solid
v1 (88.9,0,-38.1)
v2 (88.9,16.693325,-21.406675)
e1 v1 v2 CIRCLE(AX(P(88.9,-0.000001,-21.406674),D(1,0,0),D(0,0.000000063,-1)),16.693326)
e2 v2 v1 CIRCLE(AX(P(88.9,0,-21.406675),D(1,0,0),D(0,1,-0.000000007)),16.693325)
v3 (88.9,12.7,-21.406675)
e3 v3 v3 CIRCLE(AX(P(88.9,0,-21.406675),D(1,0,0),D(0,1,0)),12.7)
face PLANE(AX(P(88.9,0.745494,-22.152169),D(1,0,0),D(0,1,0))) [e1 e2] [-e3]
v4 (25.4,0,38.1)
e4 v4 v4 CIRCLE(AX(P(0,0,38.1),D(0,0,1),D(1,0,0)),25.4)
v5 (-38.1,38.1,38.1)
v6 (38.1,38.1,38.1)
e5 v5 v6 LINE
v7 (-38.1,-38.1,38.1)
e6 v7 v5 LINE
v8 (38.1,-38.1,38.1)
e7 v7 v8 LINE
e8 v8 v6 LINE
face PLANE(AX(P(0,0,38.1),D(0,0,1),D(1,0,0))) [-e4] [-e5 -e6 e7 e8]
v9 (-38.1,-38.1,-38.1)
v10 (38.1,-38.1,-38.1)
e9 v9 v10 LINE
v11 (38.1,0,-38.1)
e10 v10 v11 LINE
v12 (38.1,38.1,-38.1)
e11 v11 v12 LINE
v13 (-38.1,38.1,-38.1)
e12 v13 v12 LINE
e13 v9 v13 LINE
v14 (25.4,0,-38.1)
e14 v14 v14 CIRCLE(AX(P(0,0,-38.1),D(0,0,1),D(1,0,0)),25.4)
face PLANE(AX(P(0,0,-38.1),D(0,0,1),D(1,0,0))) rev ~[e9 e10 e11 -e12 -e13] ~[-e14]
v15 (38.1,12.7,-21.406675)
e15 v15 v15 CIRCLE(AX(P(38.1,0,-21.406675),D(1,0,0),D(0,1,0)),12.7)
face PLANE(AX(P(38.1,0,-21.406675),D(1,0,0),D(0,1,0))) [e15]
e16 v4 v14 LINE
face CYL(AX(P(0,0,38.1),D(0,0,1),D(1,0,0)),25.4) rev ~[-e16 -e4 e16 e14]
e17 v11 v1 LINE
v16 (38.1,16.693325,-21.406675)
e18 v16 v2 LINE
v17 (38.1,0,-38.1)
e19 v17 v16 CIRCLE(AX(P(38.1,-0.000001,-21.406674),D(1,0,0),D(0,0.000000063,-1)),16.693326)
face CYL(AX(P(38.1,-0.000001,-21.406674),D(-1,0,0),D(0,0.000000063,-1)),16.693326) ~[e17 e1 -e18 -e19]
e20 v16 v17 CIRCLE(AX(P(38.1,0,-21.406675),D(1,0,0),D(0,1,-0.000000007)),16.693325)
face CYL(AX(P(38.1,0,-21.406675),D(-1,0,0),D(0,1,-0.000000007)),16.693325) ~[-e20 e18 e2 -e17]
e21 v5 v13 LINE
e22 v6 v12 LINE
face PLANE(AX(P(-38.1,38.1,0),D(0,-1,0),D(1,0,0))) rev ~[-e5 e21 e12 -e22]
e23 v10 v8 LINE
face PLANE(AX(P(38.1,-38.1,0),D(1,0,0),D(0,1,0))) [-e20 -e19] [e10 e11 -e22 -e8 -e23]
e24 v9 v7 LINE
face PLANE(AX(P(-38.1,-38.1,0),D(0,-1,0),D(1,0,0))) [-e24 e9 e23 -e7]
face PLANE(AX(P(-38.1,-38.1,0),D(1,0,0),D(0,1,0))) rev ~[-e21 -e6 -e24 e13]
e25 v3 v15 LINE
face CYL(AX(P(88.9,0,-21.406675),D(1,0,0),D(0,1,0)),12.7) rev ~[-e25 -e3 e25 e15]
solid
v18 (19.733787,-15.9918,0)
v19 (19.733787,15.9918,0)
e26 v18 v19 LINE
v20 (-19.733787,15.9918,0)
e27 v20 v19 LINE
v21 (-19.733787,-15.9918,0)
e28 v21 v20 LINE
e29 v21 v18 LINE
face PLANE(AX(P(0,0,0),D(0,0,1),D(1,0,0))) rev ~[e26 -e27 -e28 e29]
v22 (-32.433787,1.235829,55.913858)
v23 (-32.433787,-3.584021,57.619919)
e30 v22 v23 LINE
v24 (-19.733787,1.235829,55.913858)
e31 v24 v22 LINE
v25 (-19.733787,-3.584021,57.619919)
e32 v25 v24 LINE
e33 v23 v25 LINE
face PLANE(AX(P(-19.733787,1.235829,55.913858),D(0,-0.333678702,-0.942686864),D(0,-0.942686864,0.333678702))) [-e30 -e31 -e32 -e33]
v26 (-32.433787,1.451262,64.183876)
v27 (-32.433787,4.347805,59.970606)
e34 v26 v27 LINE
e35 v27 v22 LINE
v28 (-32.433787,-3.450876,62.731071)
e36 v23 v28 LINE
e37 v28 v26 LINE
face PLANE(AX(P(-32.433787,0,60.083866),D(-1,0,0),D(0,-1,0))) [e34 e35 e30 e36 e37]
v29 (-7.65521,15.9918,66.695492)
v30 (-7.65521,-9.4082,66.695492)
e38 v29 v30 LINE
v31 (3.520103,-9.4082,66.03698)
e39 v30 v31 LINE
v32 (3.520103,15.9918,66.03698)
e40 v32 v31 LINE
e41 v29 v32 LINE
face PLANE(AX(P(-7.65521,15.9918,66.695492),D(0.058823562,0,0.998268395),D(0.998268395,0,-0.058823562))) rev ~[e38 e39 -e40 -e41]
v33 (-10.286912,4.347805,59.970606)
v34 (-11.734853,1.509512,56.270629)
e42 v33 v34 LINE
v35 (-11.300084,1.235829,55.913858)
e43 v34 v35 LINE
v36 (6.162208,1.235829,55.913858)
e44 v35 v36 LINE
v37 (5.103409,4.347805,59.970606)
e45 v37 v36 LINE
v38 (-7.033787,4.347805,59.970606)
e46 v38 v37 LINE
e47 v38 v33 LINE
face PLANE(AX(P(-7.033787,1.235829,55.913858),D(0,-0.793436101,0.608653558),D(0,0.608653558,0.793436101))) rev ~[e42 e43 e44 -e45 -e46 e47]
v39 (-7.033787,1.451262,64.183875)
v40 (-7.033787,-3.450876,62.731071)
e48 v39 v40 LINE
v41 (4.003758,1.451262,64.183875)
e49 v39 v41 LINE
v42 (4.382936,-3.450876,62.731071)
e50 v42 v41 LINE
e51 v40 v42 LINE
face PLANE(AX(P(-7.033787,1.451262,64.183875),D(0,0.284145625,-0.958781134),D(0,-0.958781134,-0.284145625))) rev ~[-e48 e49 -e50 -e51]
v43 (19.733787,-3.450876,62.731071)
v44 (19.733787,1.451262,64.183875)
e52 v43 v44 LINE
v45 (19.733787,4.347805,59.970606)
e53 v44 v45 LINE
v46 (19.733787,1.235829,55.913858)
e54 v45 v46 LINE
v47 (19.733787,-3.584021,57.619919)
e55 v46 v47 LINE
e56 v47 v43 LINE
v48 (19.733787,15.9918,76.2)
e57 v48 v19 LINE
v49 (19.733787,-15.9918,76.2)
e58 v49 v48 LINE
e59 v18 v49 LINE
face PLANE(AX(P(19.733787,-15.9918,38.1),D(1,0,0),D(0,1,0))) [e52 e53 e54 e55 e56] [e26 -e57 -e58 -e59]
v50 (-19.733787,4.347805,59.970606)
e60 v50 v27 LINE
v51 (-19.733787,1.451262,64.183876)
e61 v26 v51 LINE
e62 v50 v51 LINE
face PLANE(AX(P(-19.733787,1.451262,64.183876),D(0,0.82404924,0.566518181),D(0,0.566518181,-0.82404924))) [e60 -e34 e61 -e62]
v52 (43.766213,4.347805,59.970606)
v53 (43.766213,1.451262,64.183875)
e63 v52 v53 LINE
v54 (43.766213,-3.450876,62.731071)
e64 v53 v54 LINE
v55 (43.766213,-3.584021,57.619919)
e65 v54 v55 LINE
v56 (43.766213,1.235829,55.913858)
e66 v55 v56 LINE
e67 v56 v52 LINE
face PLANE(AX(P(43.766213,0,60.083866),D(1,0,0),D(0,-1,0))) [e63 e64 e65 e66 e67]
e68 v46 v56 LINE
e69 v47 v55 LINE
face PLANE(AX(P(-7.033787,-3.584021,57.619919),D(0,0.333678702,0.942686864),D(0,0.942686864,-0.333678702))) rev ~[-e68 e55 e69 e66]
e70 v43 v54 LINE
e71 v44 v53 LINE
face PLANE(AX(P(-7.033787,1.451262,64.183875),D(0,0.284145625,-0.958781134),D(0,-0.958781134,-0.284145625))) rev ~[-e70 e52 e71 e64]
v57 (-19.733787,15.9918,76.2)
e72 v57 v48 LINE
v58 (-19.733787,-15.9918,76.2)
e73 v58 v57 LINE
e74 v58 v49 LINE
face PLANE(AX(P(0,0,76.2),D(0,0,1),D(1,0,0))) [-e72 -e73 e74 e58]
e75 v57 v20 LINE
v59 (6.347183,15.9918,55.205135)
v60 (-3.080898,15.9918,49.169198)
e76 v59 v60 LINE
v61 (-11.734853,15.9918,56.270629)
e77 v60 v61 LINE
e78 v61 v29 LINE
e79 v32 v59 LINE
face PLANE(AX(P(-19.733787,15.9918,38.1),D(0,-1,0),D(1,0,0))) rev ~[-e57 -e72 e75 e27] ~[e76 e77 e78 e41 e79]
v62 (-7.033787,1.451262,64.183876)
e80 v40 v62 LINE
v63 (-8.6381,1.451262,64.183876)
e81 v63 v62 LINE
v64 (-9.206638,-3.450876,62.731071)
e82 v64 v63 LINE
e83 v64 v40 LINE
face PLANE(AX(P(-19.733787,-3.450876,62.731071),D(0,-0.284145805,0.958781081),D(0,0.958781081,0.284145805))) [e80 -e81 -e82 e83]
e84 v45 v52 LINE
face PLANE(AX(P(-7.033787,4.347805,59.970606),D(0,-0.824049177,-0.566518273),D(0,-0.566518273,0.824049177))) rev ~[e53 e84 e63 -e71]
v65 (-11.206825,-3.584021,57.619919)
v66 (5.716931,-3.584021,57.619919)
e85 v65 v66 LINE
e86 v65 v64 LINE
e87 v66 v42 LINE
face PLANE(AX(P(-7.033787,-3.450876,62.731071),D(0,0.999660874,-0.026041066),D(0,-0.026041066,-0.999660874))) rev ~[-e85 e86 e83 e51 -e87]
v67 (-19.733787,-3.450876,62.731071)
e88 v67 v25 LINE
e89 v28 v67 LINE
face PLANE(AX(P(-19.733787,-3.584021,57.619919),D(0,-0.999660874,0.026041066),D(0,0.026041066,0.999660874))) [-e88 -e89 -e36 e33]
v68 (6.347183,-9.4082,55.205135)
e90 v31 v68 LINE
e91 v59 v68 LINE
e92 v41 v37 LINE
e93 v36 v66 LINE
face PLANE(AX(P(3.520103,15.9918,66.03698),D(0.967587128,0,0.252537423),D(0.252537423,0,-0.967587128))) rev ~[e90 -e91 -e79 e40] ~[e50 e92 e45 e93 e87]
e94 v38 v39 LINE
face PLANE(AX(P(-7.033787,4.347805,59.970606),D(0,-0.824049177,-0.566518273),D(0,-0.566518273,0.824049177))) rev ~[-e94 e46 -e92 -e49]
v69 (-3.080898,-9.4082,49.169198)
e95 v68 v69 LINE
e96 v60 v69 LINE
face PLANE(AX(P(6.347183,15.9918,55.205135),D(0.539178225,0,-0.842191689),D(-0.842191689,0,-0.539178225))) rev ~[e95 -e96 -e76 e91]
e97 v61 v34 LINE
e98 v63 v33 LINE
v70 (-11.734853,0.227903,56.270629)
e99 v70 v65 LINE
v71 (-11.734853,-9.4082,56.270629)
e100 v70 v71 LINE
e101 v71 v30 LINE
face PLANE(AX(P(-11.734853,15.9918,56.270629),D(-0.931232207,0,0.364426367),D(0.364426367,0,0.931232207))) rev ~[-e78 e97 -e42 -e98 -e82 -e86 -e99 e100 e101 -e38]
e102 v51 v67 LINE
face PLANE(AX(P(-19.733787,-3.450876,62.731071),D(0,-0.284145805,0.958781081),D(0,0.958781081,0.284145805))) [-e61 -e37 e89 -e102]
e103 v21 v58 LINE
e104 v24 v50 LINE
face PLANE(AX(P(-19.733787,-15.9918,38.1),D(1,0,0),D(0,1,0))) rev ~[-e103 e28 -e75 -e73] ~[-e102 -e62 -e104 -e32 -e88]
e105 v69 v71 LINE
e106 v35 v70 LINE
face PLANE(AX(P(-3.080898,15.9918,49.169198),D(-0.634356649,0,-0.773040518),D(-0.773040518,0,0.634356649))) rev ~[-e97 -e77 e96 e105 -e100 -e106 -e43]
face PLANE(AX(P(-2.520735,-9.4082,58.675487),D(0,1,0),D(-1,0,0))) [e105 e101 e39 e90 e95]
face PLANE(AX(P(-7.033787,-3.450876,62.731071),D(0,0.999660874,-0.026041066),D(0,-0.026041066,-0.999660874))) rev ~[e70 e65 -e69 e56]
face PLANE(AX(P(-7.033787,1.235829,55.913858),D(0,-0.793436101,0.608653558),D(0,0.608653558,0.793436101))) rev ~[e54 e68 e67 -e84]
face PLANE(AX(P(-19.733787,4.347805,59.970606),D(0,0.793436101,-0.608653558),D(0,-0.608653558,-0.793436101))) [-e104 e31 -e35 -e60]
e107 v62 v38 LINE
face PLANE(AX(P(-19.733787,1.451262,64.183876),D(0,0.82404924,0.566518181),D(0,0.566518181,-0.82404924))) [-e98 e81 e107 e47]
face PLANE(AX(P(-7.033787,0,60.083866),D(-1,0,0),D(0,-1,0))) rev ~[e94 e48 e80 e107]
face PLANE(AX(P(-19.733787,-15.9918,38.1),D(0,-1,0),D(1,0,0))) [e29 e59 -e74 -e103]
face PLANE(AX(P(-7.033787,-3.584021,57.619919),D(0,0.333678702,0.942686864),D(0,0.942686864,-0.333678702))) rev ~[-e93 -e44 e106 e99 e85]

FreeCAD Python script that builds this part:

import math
import FreeCAD as App
import Part
import Sketcher

V = App.Vector
Q = App.Units.Quantity

doc = App.newDocument("Part")
body = doc.addObject("PartDesign::Body", "Body")

# Sketch on XY plane
sketch1 = body.newObject("Sketcher::SketchObject", "Sketch")
sketch1.AttachmentSupport = (doc.getObject("XY_Plane"), [""])
sketch1.MapMode = "FlatFace"
sketch1.addGeometry(Part.LineSegment(V(-38, 38, 0), V(-38, -38, 0)), False)
sketch1.addGeometry(Part.LineSegment(V(-38, -38, 0), V(38, -38, 0)), False)
sketch1.addGeometry(Part.LineSegment(V(38, -38, 0), V(38, 38, 0)), False)
sketch1.addGeometry(Part.LineSegment(V(38, 38, 0), V(-38, 38, 0)), False)
sketch1.addConstraint(Sketcher.Constraint("Coincident", 0, 2, 1, 1))
sketch1.addConstraint(Sketcher.Constraint("Coincident", 1, 2, 2, 1))
sketch1.addConstraint(Sketcher.Constraint("Coincident", 2, 2, 3, 1))
sketch1.addConstraint(Sketcher.Constraint("Coincident", 3, 2, 0, 1))
sketch1.addConstraint(Sketcher.Constraint("Vertical", 0))
sketch1.addConstraint(Sketcher.Constraint("Horizontal", 1))
sketch1.addConstraint(Sketcher.Constraint("Vertical", 2))
sketch1.addConstraint(Sketcher.Constraint("Horizontal", 3))
sketch1.addConstraint(Sketcher.Constraint("Symmetric", 0, 2, 2, 2, -1, 1))
sketch1.addConstraint(Sketcher.Constraint("Equal", 3, 0))
sketch1.addConstraint(Sketcher.Constraint("DistanceX", 1, 1, 1, 2, Q("3 in")))
pad1 = body.newObject("PartDesign::Pad", "Pad")
pad1.Profile = sketch1
pad1.Length = Q("3 in")
pad1.Midplane = True

# Sketch on XY plane
sketch2 = body.newObject("Sketcher::SketchObject", "Sketch001")
sketch2.AttachmentSupport = (doc.getObject("XY_Plane"), [""])
sketch2.MapMode = "FlatFace"
sketch2.AttachmentOffset = App.Placement(V(0, 0, 1.5 * 25.4), App.Rotation())
sketch2.addGeometry(Part.Circle(V(0, 0, 0), V(0, 0, 1), 25), False)
sketch2.addConstraint(Sketcher.Constraint("Coincident", 0, 3, -1, 1))
sketch2.addConstraint(Sketcher.Constraint("Diameter", 0, Q("2 in")))
pocket1 = body.newObject("PartDesign::Pocket", "Pocket")
pocket1.Profile = sketch2
pocket1.Type = "ThroughAll"

# Sketch on YZ plane
sketch3 = body.newObject("Sketcher::SketchObject", "Sketch002")
sketch3.AttachmentSupport = (doc.getObject("YZ_Plane"), [""])
sketch3.MapMode = "FlatFace"
sketch3.AttachmentOffset = App.Placement(V(0, 0, 1.5 * 25.4), App.Rotation())
sketch3.addGeometry(Part.ArcOfCircle(Part.Circle(V(0, -21, 0), V(0, 0, 1), 17), math.radians(-90), math.radians(0)), False)
sketch3.addGeometry(Part.ArcOfCircle(Part.Circle(V(0, -21, 0), V(0, 0, 1), 17), math.radians(0), math.radians(270)), False)
sketch3.addConstraint(Sketcher.Constraint("Tangent", 0, 1, 1, 2))
sketch3.addConstraint(Sketcher.Constraint("Coincident", 1, 1, 0, 2))
sketch3.addConstraint(Sketcher.Constraint("PointOnObject", 0, 3, -2))
sketch3.addConstraint(Sketcher.Constraint("PointOnObject", 0, 1, -2))
sketch3.addConstraint(Sketcher.Constraint("Horizontal", 0, 3, 1, 1))
sketch3.addConstraint(Sketcher.Constraint("DistanceY", 0, 1, -1, 1, Q("1.5 in")))
sketch3.addConstraint(Sketcher.Constraint("Radius", 0, 16.693326))
pad2 = body.newObject("PartDesign::Pad", "Pad001")
pad2.Profile = sketch3
pad2.Length = Q("2 in")

# Sketch on YZ plane
sketch4 = body.newObject("Sketcher::SketchObject", "Sketch003")
sketch4.AttachmentSupport = (doc.getObject("YZ_Plane"), [""])
sketch4.MapMode = "FlatFace"
sketch4.AttachmentOffset = App.Placement(V(0, 0, 3.5 * 25.4), App.Rotation())
sketch4.addGeometry(Part.Circle(V(0, -21, 0), V(0, 0, 1), 13), False)
sketch4.addConstraint(Sketcher.Constraint("PointOnObject", 0, 3, -2))
sketch4.addConstraint(Sketcher.Constraint("Diameter", 0, Q("1 in")))
sketch4.addConstraint(Sketcher.Constraint("DistanceY", 0, 3, -1, 1, 21.406675))
pocket2 = body.newObject("PartDesign::Pocket", "Pocket001")
pocket2.Profile = sketch4
pocket2.Length = Q("2 in")
body2 = doc.addObject("PartDesign::Body", "Body001")

# Sketch on XY plane
sketch5 = body2.newObject("Sketcher::SketchObject", "Sketch004")
sketch5.AttachmentSupport = (doc.getObject("XY_Plane001"), [""])
sketch5.MapMode = "FlatFace"
sketch5.AttachmentOffset = App.Placement(V(0, 0, 1.5 * 25.4), App.Rotation())
sketch5.addGeometry(Part.LineSegment(V(-20, 16, 0), V(-20, -16, 0)), False)
sketch5.addGeometry(Part.LineSegment(V(-20, -16, 0), V(20, -16, 0)), False)
sketch5.addGeometry(Part.LineSegment(V(20, -16, 0), V(20, 16, 0)), False)
sketch5.addGeometry(Part.LineSegment(V(20, 16, 0), V(-20, 16, 0)), False)
sketch5.addConstraint(Sketcher.Constraint("Coincident", 0, 2, 1, 1))
sketch5.addConstraint(Sketcher.Constraint("Coincident", 1, 2, 2, 1))
sketch5.addConstraint(Sketcher.Constraint("Coincident", 2, 2, 3, 1))
sketch5.addConstraint(Sketcher.Constraint("Coincident", 3, 2, 0, 1))
sketch5.addConstraint(Sketcher.Constraint("Vertical", 0))
sketch5.addConstraint(Sketcher.Constraint("Horizontal", 1))
sketch5.addConstraint(Sketcher.Constraint("Vertical", 2))
sketch5.addConstraint(Sketcher.Constraint("Horizontal", 3))
sketch5.addConstraint(Sketcher.Constraint("Symmetric", 0, 2, 2, 2, -1, 1))
sketch5.addConstraint(Sketcher.Constraint("DistanceY", 0, 2, 0, 1, 31.9836))
sketch5.addConstraint(Sketcher.Constraint("DistanceX", 1, 1, 1, 2, 39.467574))
pad3 = body2.newObject("PartDesign::Pad", "Pad002")
pad3.Profile = sketch5
pad3.Length = Q("3 in")
pad3.Midplane = True

# Sketch on XZ plane
sketch6 = body2.newObject("Sketcher::SketchObject", "Sketch005")
sketch6.AttachmentSupport = (doc.getObject("XZ_Plane001"), [""])
sketch6.MapMode = "FlatFace"
sketch6.AttachmentOffset = App.Placement(V(0, 0, -15.9918), App.Rotation())
sketch6.addGeometry(Part.LineSegment(V(6, 55, 0), V(-3, 49, 0)), False)
sketch6.addGeometry(Part.LineSegment(V(-3, 49, 0), V(-12, 56, 0)), False)
sketch6.addGeometry(Part.LineSegment(V(-12, 56, 0), V(-8, 67, 0)), False)
sketch6.addGeometry(Part.LineSegment(V(-8, 67, 0), V(4, 66, 0)), False)
sketch6.addGeometry(Part.LineSegment(V(4, 66, 0), V(6, 55, 0)), False)
sketch6.addConstraint(Sketcher.Constraint("Coincident", 0, 2, 1, 1))
sketch6.addConstraint(Sketcher.Constraint("Coincident", 1, 2, 2, 1))
sketch6.addConstraint(Sketcher.Constraint("Coincident", 2, 2, 3, 1))
sketch6.addConstraint(Sketcher.Constraint("Coincident", 3, 2, 4, 1))
sketch6.addConstraint(Sketcher.Constraint("Coincident", 4, 2, 0, 1))
sketch6.addConstraint(Sketcher.Constraint("Equal", 0, 1))
sketch6.addConstraint(Sketcher.Constraint("Equal", 1, 2))
sketch6.addConstraint(Sketcher.Constraint("Equal", 2, 3))
sketch6.addConstraint(Sketcher.Constraint("Equal", 3, 4))
sketch6.addConstraint(Sketcher.Constraint("DistanceY", -1, 1, 0, 2, 49.169198))
sketch6.addConstraint(Sketcher.Constraint("DistanceX", 0, 2, 3, 2, 6.601001))
sketch6.addConstraint(Sketcher.Constraint("DistanceY", -1, 1, 1, 2, 56.270629))
sketch6.addConstraint(Sketcher.Constraint("DistanceX", 2, 2, -1, 1, 7.65521))
sketch6.addConstraint(Sketcher.Constraint("DistanceY", -1, 1, 2, 2, 66.695492))
sketch6.addConstraint(Sketcher.Constraint("DistanceY", -1, 1, 3, 2, 66.03698))
pocket3 = body2.newObject("PartDesign::Pocket", "Pocket002")
pocket3.Profile = sketch6
pocket3.Length = Q("1 in")
pocket3.Reversed = True

# Sketch on YZ plane
sketch7 = body2.newObject("Sketcher::SketchObject", "Sketch006")
sketch7.AttachmentSupport = (doc.getObject("YZ_Plane001"), [""])
sketch7.MapMode = "FlatFace"
sketch7.AttachmentOffset = App.Placement(V(0, 0, -19.733787), App.Rotation())
sketch7.addGeometry(Part.LineSegment(V(1.451262, 64.183876, 0), V(4.347805, 59.970606, 0)), False)
sketch7.addGeometry(Part.LineSegment(V(4.347805, 59.970606, 0), V(1.235829, 55.913858, 0)), False)
sketch7.addGeometry(Part.LineSegment(V(1.235829, 55.913858, 0), V(-3.584021, 57.619919, 0)), False)
sketch7.addGeometry(Part.LineSegment(V(-3.584021, 57.619919, 0), V(-3.450876, 62.731071, 0)), False)
sketch7.addGeometry(Part.LineSegment(V(-3.450876, 62.731071, 0), V(1.451262, 64.183876, 0)), False)
sketch7.addConstraint(Sketcher.Constraint("Coincident", 0, 2, 1, 1))
sketch7.addConstraint(Sketcher.Constraint("Coincident", 1, 2, 2, 1))
sketch7.addConstraint(Sketcher.Constraint("Coincident", 2, 2, 3, 1))
sketch7.addConstraint(Sketcher.Constraint("Coincident", 3, 2, 4, 1))
sketch7.addConstraint(Sketcher.Constraint("Coincident", 4, 2, 0, 1))
sketch7.addConstraint(Sketcher.Constraint("DistanceX", -1, 1, 1, 2, 1.235829))
sketch7.addConstraint(Sketcher.Constraint("DistanceX", 2, 2, -1, 1, 3.584021))
sketch7.addConstraint(Sketcher.Constraint("DistanceY", -1, 1, 2, 2, 57.619919))
sketch7.addConstraint(Sketcher.Constraint("DistanceY", -1, 1, 3, 2, 62.731071))
sketch7.addConstraint(Sketcher.Constraint("DistanceY", 1, 2, 2, 2, 1.706061))
sketch7.addConstraint(Sketcher.Constraint("DistanceX", 3, 2, 0, 2, 7.798681))
sketch7.addConstraint(Sketcher.Constraint("DistanceY", 0, 2, 4, 2, 4.21327))
sketch7.addConstraint(Sketcher.Constraint("Distance", 0, 5.112886))
sketch7.addConstraint(Sketcher.Constraint("Distance", 1, 5.112886))
sketch7.addConstraint(Sketcher.Constraint("Distance", 3, 5.112886))
pad4 = body2.newObject("PartDesign::Pad", "Pad003")
pad4.Profile = sketch7
pad4.Length = Q("1 in")
pad4.Midplane = True

# Sketch on YZ plane
sketch8 = body2.newObject("Sketcher::SketchObject", "Sketch007")
sketch8.AttachmentSupport = (doc.getObject("YZ_Plane001"), [""])
sketch8.MapMode = "FlatFace"
sketch8.AttachmentOffset = App.Placement(V(0, 0, -7.033787), App.Rotation())
sketch8.addGeometry(Part.LineSegment(V(-3.450876, 62.731071, 0), V(-3.584021, 57.619919, 0)), False)
sketch8.addGeometry(Part.LineSegment(V(-3.584021, 57.619919, 0), V(1.235829, 55.913858, 0)), False)
sketch8.addGeometry(Part.LineSegment(V(1.235829, 55.913858, 0), V(4.347805, 59.970606, 0)), False)
sketch8.addGeometry(Part.LineSegment(V(4.347805, 59.970606, 0), V(1.451262, 64.183875, 0)), False)
sketch8.addGeometry(Part.LineSegment(V(1.451262, 64.183875, 0), V(-3.450876, 62.731071, 0)), False)
sketch8.addConstraint(Sketcher.Constraint("Coincident", 0, 2, 1, 1))
sketch8.addConstraint(Sketcher.Constraint("Coincident", 1, 2, 2, 1))
sketch8.addConstraint(Sketcher.Constraint("Coincident", 2, 2, 3, 1))
sketch8.addConstraint(Sketcher.Constraint("Coincident", 3, 2, 4, 1))
sketch8.addConstraint(Sketcher.Constraint("Coincident", 4, 2, 0, 1))
sketch8.addConstraint(Sketcher.Constraint("DistanceX", 0, 2, -1, 1, 3.584021))
sketch8.addConstraint(Sketcher.Constraint("DistanceY", -1, 1, 0, 2, 57.619919))
sketch8.addConstraint(Sketcher.Constraint("DistanceX", -1, 1, 1, 2, 1.235829))
sketch8.addConstraint(Sketcher.Constraint("DistanceY", -1, 1, 4, 2, 62.731071))
sketch8.addConstraint(Sketcher.Constraint("DistanceY", 1, 2, 0, 2, 1.706061))
sketch8.addConstraint(Sketcher.Constraint("DistanceY", 2, 2, 3, 2, 4.213269))
sketch8.addConstraint(Sketcher.Constraint("DistanceX", 4, 2, 2, 2, 7.798681))
sketch8.addConstraint(Sketcher.Constraint("Distance", 0, 5.112886))
sketch8.addConstraint(Sketcher.Constraint("Distance", 2, 5.112886))
sketch8.addConstraint(Sketcher.Constraint("Distance", 3, 5.112885))
pad5 = body2.newObject("PartDesign::Pad", "Pad004")
pad5.Profile = sketch8
pad5.Length = Q("2 in")

doc.recompute()
